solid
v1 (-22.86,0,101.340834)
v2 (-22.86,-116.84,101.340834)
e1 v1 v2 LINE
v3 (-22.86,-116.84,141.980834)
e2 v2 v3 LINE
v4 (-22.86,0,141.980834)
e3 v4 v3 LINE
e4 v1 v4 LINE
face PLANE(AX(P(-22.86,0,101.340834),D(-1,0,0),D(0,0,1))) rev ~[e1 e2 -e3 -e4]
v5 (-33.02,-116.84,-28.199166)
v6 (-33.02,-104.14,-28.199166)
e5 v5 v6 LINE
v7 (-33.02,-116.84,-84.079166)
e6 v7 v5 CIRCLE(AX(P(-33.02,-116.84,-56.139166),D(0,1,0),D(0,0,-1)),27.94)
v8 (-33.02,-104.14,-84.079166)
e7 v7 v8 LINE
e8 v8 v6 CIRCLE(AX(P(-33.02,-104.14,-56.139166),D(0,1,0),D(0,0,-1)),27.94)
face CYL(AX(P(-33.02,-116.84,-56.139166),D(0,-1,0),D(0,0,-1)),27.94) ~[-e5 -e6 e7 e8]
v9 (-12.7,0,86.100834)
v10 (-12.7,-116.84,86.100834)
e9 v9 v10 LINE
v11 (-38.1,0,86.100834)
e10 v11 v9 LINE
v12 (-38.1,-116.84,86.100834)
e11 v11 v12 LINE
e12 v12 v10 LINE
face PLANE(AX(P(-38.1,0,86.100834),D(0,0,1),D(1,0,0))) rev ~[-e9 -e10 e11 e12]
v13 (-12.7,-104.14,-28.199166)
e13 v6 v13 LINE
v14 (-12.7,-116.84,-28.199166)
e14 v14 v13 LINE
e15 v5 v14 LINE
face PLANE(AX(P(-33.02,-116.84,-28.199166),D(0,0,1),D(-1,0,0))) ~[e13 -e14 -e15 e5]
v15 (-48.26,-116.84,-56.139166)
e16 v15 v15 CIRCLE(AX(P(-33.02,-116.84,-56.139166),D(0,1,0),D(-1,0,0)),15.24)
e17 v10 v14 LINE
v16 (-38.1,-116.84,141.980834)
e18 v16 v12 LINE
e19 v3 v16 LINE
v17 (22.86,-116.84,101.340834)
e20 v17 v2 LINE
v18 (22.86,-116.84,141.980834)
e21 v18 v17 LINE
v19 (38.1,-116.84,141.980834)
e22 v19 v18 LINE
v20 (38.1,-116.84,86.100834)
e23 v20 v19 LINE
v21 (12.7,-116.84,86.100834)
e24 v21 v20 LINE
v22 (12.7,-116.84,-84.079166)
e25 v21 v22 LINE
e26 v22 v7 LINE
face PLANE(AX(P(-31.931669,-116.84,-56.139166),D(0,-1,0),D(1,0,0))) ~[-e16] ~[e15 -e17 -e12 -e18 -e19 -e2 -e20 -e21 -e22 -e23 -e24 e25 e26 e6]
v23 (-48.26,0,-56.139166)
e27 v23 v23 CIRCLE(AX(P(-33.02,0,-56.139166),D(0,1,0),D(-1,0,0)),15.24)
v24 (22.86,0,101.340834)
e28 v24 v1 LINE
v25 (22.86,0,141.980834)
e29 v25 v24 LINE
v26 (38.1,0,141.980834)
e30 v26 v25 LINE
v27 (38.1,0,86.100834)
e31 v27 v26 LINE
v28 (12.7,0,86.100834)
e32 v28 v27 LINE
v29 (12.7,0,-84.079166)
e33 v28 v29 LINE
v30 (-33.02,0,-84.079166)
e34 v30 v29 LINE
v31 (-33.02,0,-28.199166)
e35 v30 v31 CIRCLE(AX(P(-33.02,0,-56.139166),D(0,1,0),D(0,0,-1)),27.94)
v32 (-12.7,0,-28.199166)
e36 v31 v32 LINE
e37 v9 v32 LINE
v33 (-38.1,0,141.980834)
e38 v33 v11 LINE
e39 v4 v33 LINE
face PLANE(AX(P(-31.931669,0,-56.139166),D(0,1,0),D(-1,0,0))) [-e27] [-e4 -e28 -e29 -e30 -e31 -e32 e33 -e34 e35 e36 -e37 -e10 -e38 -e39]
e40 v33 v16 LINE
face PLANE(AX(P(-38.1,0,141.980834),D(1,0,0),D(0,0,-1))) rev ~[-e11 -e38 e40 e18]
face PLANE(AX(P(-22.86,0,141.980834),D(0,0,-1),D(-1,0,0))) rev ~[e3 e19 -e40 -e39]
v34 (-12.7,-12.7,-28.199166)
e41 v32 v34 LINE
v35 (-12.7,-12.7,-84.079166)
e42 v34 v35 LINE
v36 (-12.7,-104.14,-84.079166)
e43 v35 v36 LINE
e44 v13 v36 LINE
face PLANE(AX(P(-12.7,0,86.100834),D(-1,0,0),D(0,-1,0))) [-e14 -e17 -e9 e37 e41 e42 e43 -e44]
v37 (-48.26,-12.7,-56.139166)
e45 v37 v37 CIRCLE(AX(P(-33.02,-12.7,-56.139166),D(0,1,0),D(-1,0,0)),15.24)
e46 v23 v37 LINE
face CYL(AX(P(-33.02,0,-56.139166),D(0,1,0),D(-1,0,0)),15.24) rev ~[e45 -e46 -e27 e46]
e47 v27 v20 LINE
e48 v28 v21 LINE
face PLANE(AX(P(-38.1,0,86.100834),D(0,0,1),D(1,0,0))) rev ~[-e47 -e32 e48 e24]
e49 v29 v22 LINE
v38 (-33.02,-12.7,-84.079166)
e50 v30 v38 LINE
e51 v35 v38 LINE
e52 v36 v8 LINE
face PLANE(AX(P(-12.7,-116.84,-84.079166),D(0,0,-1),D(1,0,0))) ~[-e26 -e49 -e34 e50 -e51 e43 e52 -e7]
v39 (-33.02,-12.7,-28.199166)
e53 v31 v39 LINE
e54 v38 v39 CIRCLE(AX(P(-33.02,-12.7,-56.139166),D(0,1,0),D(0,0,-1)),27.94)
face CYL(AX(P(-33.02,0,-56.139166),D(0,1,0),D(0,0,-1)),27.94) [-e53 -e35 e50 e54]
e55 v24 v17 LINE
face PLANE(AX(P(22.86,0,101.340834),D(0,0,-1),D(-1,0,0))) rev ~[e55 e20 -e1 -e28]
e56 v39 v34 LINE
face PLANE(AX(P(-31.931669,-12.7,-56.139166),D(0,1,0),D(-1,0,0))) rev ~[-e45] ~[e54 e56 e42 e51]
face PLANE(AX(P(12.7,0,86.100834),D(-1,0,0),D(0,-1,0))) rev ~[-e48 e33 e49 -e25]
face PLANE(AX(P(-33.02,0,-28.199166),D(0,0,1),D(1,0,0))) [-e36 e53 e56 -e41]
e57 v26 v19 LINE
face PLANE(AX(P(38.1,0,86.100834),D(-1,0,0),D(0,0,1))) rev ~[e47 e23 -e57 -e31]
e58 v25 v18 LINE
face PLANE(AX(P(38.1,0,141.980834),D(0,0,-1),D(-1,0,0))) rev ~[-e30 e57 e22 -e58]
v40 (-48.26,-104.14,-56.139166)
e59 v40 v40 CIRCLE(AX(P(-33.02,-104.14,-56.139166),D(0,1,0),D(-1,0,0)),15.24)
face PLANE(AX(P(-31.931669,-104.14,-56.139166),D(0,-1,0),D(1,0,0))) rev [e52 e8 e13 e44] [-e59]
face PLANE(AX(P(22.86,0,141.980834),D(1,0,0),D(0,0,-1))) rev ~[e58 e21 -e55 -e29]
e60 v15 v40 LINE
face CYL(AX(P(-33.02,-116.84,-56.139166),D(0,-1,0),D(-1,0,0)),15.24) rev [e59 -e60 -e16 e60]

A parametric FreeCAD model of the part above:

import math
import FreeCAD as App
import Part
import Sketcher
from FreeCAD import Vector
Q = App.Units.Quantity

doc = App.newDocument("Part")
body = doc.addObject("PartDesign::Body", "Body")

# Sketch on XZ plane
sketch1 = doc.addObject("Sketcher::SketchObject", "Sketch")
body.addObject(sketch1)
sketch1.AttachmentSupport = (doc.XZ_Plane, [""])
sketch1.MapMode = "FlatFace"
sketch1.addGeometry(Part.LineSegment(Vector(-38, 86, 0), Vector(38, 86, 0)), False)
sketch1.addGeometry(Part.LineSegment(Vector(38, 86, 0), Vector(38, 142, 0)), False)
sketch1.addGeometry(Part.LineSegment(Vector(38, 142, 0), Vector(23, 142, 0)), False)
sketch1.addGeometry(Part.LineSegment(Vector(23, 142, 0), Vector(23, 101, 0)), False)
sketch1.addGeometry(Part.LineSegment(Vector(23, 101, 0), Vector(-23, 101, 0)), False)
sketch1.addGeometry(Part.LineSegment(Vector(-23, 101, 0), Vector(-23, 142, 0)), False)
sketch1.addGeometry(Part.LineSegment(Vector(-23, 142, 0), Vector(-38, 142, 0)), False)
sketch1.addGeometry(Part.LineSegment(Vector(-38, 142, 0), Vector(-38, 86, 0)), False)
sketch1.addConstraint(Sketcher.Constraint("Coincident", 0, 2, 1, 1))
sketch1.addConstraint(Sketcher.Constraint("Coincident", 1, 2, 2, 1))
sketch1.addConstraint(Sketcher.Constraint("Coincident", 2, 2, 3, 1))
sketch1.addConstraint(Sketcher.Constraint("Coincident", 3, 2, 4, 1))
sketch1.addConstraint(Sketcher.Constraint("Coincident", 4, 2, 5, 1))
sketch1.addConstraint(Sketcher.Constraint("Coincident", 5, 2, 6, 1))
sketch1.addConstraint(Sketcher.Constraint("Coincident", 6, 2, 7, 1))
sketch1.addConstraint(Sketcher.Constraint("Coincident", 7, 2, 0, 1))
sketch1.addConstraint(Sketcher.Constraint("Horizontal", 0))
sketch1.addConstraint(Sketcher.Constraint("Vertical", 1))
sketch1.addConstraint(Sketcher.Constraint("Horizontal", 2))
sketch1.addConstraint(Sketcher.Constraint("Vertical", 3))
sketch1.addConstraint(Sketcher.Constraint("Horizontal", 4))
sketch1.addConstraint(Sketcher.Constraint("Vertical", 5))
sketch1.addConstraint(Sketcher.Constraint("Horizontal", 6))
sketch1.addConstraint(Sketcher.Constraint("Vertical", 7))
sketch1.addConstraint(Sketcher.Constraint("Symmetric", 2, 2, 5, 2, -2))
sketch1.addConstraint(Sketcher.Constraint("Equal", 2, 6))
sketch1.addConstraint(Sketcher.Constraint("DistanceX", 0, 1, 0, 2, Q("3 in")))
sketch1.addConstraint(Sketcher.Constraint("DistanceX", 2, 2, 2, 1, Q("0.6 in")))
sketch1.addConstraint(Sketcher.Constraint("DistanceY", 1, 1, 1, 2, Q("2.2 in")))
sketch1.addConstraint(Sketcher.Constraint("DistanceY", 3, 2, 3, 1, Q("1.6 in")))
sketch1.addConstraint(Sketcher.Constraint("DistanceY", -1, 1, 0, 2, Q("86.100834 mm")))
pad1 = doc.addObject("PartDesign::Pad", "Pad")
body.addObject(pad1)
pad1.Profile = sketch1
pad1.Length = Q("4.6 in")

# Sketch on XY plane
sketch2 = doc.addObject("Sketcher::SketchObject", "Sketch001")
body.addObject(sketch2)
sketch2.AttachmentSupport = (doc.XY_Plane, [""])
sketch2.MapMode = "FlatFace"
sketch2.AttachmentOffset = App.Placement(Vector(0, 0, 86.100834), App.Rotation())
sketch2.addGeometry(Part.LineSegment(Vector(-13, -117, 0), Vector(-13, 0, 0)), False)
sketch2.addGeometry(Part.LineSegment(Vector(-13, 0, 0), Vector(13, 0, 0)), False)
sketch2.addGeometry(Part.LineSegment(Vector(13, 0, 0), Vector(13, -117, 0)), False)
sketch2.addGeometry(Part.LineSegment(Vector(13, -117, 0), Vector(-13, -117, 0)), False)
sketch2.addConstraint(Sketcher.Constraint("Coincident", 0, 2, 1, 1))
sketch2.addConstraint(Sketcher.Constraint("Coincident", 1, 2, 2, 1))
sketch2.addConstraint(Sketcher.Constraint("Coincident", 2, 2, 3, 1))
sketch2.addConstraint(Sketcher.Constraint("Coincident", 3, 2, 0, 1))
sketch2.addConstraint(Sketcher.Constraint("Vertical", 0))
sketch2.addConstraint(Sketcher.Constraint("Horizontal", 1))
sketch2.addConstraint(Sketcher.Constraint("Vertical", 2))
sketch2.addConstraint(Sketcher.Constraint("Horizontal", 3))
sketch2.addConstraint(Sketcher.Constraint("Symmetric", 0, 2, 1, 2, -1, 1))
sketch2.addConstraint(Sketcher.Constraint("DistanceX", 1, 1, 1, 2, Q("1 in")))
sketch2.addConstraint(Sketcher.Constraint("DistanceY", 0, 1, 0, 2, Q("4.6 in")))
pad2 = doc.addObject("PartDesign::Pad", "Pad001")
body.addObject(pad2)
pad2.Profile = sketch2
pad2.Length = Q("6.7 in")
pad2.Reversed = True

# Sketch on XZ plane
sketch3 = doc.addObject("Sketcher::SketchObject", "Sketch002")
body.addObject(sketch3)
sketch3.AttachmentSupport = (doc.XZ_Plane, [""])
sketch3.MapMode = "FlatFace"
sketch3.addGeometry(Part.LineSegment(Vector(-13, -84, 0), Vector(-33, -84, 0)), False)
sketch3.addGeometry(Part.ArcOfCircle(Part.Circle(Vector(-33, -56, 0), Vector(0, 0, 1), 28), math.radians(90), math.radians(270)), False)
sketch3.addGeometry(Part.LineSegment(Vector(-33, -28, 0), Vector(-13, -28, 0)), False)
sketch3.addGeometry(Part.LineSegment(Vector(-13, -28, 0), Vector(-13, -84, 0)), False)
sketch3.addGeometry(Part.Circle(Vector(-33, -56, 0), Vector(0, 0, 1), 15), False)
sketch3.addConstraint(Sketcher.Constraint("Tangent", 0, 2, 1, 2))
sketch3.addConstraint(Sketcher.Constraint("Tangent", 1, 1, 2, 1))
sketch3.addConstraint(Sketcher.Constraint("Coincident", 2, 2, 3, 1))
sketch3.addConstraint(Sketcher.Constraint("Coincident", 3, 2, 0, 1))
sketch3.addConstraint(Sketcher.Constraint("Horizontal", 0))
sketch3.addConstraint(Sketcher.Constraint("Horizontal", 2))
sketch3.addConstraint(Sketcher.Constraint("Vertical", 3))
sketch3.addConstraint(Sketcher.Constraint("Coincident", 4, 3, 1, 3))
sketch3.addConstraint(Sketcher.Constraint("Diameter", 4, Q("1.2 in")))
sketch3.addConstraint(Sketcher.Constraint("Radius", 1, Q("1.1 in")))
sketch3.addConstraint(Sketcher.Constraint("DistanceX", 0, 2, 0, 1, Q("0.8 in")))
sketch3.addConstraint(Sketcher.Constraint("DistanceX", 1, 3, -1, 1, Q("1.3 in")))
sketch3.addConstraint(Sketcher.Constraint("DistanceY", 1, 3, -1, 1, Q("56.139166 mm")))
pad3 = doc.addObject("PartDesign::Pad", "Pad002")
body.addObject(pad3)
pad3.Profile = sketch3
pad3.Length = Q("0.5 in")
body2 = doc.addObject("PartDesign::Body", "Body001")
doc.recompute()

body2.BaseFeature = body
doc.recompute()

mirroring = doc.addObject("Part::Mirroring", "Mirroring")
mirroring.Source = body
mirroring.Base = Vector(0, -58.42, 0)
mirroring.Normal = Vector(0, -1, 0)
body3 = doc.addObject("PartDesign::Body", "Body002")
body3.BaseFeature = mirroring
boolean = doc.addObject("PartDesign::Boolean", "Boolean")
body2.addObject(boolean)
boolean.Type = "Fuse"
boolean.addObjects([body3])
doc.recompute()
mirroring.Visibility = False

doc.recompute()
